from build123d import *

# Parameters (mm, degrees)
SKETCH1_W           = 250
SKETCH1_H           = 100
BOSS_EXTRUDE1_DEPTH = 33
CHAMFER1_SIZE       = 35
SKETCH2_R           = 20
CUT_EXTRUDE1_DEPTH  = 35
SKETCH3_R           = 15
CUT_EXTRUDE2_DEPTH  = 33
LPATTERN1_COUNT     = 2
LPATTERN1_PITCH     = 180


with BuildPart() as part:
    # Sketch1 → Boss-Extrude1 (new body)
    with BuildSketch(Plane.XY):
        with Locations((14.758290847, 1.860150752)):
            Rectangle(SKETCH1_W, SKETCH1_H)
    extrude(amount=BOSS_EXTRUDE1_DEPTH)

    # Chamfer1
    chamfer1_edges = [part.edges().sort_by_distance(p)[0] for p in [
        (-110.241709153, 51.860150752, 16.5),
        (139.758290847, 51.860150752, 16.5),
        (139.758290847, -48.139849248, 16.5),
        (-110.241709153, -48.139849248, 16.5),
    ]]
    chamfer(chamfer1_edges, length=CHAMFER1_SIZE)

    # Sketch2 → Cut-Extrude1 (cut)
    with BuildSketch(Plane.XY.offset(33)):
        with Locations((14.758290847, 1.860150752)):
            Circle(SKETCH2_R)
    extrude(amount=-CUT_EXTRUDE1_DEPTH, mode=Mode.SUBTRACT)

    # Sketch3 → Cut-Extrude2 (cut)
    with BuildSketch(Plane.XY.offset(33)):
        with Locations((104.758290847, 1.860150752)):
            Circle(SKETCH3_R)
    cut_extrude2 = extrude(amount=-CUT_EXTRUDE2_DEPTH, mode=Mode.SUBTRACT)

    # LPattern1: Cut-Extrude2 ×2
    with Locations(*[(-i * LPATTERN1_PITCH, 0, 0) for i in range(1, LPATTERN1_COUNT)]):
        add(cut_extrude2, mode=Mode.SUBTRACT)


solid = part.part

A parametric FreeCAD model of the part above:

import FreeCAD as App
import Part
import Sketcher

V = App.Vector
Q = App.Units.Quantity


def edges_at(feature, points):
    """Names of the edges that pass closest to the given points."""
    edges = feature.Shape.Edges
    near = lambda p: min(range(len(edges)), key=lambda i: edges[i].distToShape(Part.Vertex(*p))[0])
    return sorted({f"Edge{near(p) + 1}" for p in points})


def add_polygon(sketch, points):
    """Adds a closed chain of lines whose ends are joined by coincident constraints."""
    first, n = sketch.GeometryCount, len(points)
    for a, b in zip(points, points[1:] + points[:1]):
        sketch.addGeometry(Part.LineSegment(App.Vector(*a, 0), App.Vector(*b, 0)), False)
    for i in range(n):
        sketch.addConstraint(Sketcher.Constraint("Coincident", first + i, 2, first + (i + 1) % n, 1))

doc = App.newDocument("Part")
body = doc.addObject("PartDesign::Body", "Body")

# Sketch on XY plane
sketch1 = doc.addObject("Sketcher::SketchObject", "Sketch")
body.addObject(sketch1)
sketch1.AttachmentSupport = (doc.XY_Plane, [""])
sketch1.MapMode = "FlatFace"
add_polygon(sketch1, [(-110, 52), (-110, -48), (140, -48), (140, 52)])  # lines 0-3
sketch1.addConstraint([
    Sketcher.Constraint("Vertical", 0),
    Sketcher.Constraint("Horizontal", 1),
    Sketcher.Constraint("Vertical", 2),
    Sketcher.Constraint("Horizontal", 3),
    Sketcher.Constraint("DistanceX", 1, 1, 1, 2, Q("250 mm")),
    Sketcher.Constraint("DistanceY", 0, 2, 0, 1, Q("100 mm")),
    Sketcher.Constraint("DistanceX", 0, 2, -1, 1, Q("110.241709 mm")),
    Sketcher.Constraint("DistanceY", 0, 2, -1, 1, Q("48.139849 mm")),
])
pad1 = doc.addObject("PartDesign::Pad", "Pad")
body.addObject(pad1)
pad1.Profile = sketch1
pad1.Length = 33
doc.recompute()

chamfer = doc.addObject("PartDesign::Chamfer", "Chamfer")
body.addObject(chamfer)
chamfer.Base = (pad1, edges_at(pad1, [
    (-110.242, 51.86, 16.5),
    (139.758, 51.86, 16.5),
    (139.758, -48.14, 16.5),
    (-110.242, -48.14, 16.5),
]))
chamfer.Size = 35

# Sketch on XY plane
sketch2 = doc.addObject("Sketcher::SketchObject", "Sketch001")
body.addObject(sketch2)
sketch2.AttachmentSupport = (doc.XY_Plane, [""])
sketch2.MapMode = "FlatFace"
sketch2.AttachmentOffset = App.Placement(V(0, 0, 33), App.Rotation())
sketch2.addGeometry(Part.Circle(V(15, 2, 0), V(0, 0, 1), 20), False)
sketch2.addConstraint([
    Sketcher.Constraint("Diameter", 0, Q("40 mm")),
    Sketcher.Constraint("DistanceX", -1, 1, 0, 3, Q("14.758291 mm")),
    Sketcher.Constraint("DistanceY", -1, 1, 0, 3, Q("1.860151 mm")),
])
pocket1 = doc.addObject("PartDesign::Pocket", "Pocket")
body.addObject(pocket1)
pocket1.Profile = sketch2
pocket1.Length = 35

# Sketch on XY plane
sketch3 = doc.addObject("Sketcher::SketchObject", "Sketch002")
body.addObject(sketch3)
sketch3.AttachmentSupport = (doc.XY_Plane, [""])
sketch3.MapMode = "FlatFace"
sketch3.AttachmentOffset = App.Placement(V(0, 0, 33), App.Rotation())
sketch3.addGeometry(Part.Circle(V(105, 2, 0), V(0, 0, 1), 15), False)
sketch3.addConstraint([
    Sketcher.Constraint("Diameter", 0, Q("30 mm")),
    Sketcher.Constraint("DistanceX", -1, 1, 0, 3, Q("104.758291 mm")),
    Sketcher.Constraint("DistanceY", -1, 1, 0, 3, Q("1.860151 mm")),
])
pocket2 = doc.addObject("PartDesign::Pocket", "Pocket001")
body.addObject(pocket2)
pocket2.Profile = sketch3
pocket2.Length = 33
doc.recompute()

linearpattern = doc.addObject("PartDesign::LinearPattern", "LinearPattern")
body.addObject(linearpattern)
linearpattern.Originals = [pocket2]
linearpattern.Direction = (doc.X_Axis, [""])
linearpattern.Mode = "offset"
linearpattern.Offset = 180
linearpattern.Occurrences = 2
linearpattern.Reversed = True
body.Tip = linearpattern

doc.recompute()
